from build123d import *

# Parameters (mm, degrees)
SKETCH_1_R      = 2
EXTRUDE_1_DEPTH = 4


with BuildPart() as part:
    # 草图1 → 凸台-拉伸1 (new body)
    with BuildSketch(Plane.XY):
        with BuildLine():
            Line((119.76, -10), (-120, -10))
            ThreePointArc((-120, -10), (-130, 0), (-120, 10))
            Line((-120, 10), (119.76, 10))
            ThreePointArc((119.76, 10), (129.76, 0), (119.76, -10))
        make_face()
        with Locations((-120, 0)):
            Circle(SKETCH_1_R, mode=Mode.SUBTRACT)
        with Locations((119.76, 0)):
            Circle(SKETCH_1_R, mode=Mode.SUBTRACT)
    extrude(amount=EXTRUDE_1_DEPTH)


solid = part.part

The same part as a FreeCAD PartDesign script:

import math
import FreeCAD as App
import Part
import Sketcher
from FreeCAD import Vector

doc = App.newDocument("Part")
body = doc.addObject("PartDesign::Body", "Body")

sketch1 = body.newObject("Sketcher::SketchObject", "Sketch")
sketch1.AttachmentSupport = (doc.getObject("XY_Plane"), [""])
sketch1.MapMode = "FlatFace"
sketch1.addGeometry(Part.LineSegment(Vector(-120, -10, 0), Vector(119.8, -10, 0)), False)
sketch1.addGeometry(Part.ArcOfCircle(Part.Circle(Vector(119.8, 0, 0), Vector(0, 0, 1), 10), math.radians(-90), math.radians(90)), False)
sketch1.addGeometry(Part.LineSegment(Vector(119.8, 10, 0), Vector(-120, 10, 0)), False)
sketch1.addGeometry(Part.ArcOfCircle(Part.Circle(Vector(-120, 0, 0), Vector(0, 0, 1), 10), math.radians(90), math.radians(270)), False)
sketch1.addGeometry(Part.Circle(Vector(119.8, 0, 0), Vector(0, 0, 1), 2), False)
sketch1.addGeometry(Part.Circle(Vector(-120, 0, 0), Vector(0, 0, 1), 2), False)
sketch1.addConstraint(Sketcher.Constraint("Tangent", 0, 2, 1, 1))
sketch1.addConstraint(Sketcher.Constraint("Tangent", 1, 2, 2, 1))
sketch1.addConstraint(Sketcher.Constraint("Tangent", 2, 2, 3, 1))
sketch1.addConstraint(Sketcher.Constraint("Tangent", 3, 2, 0, 1))
sketch1.addConstraint(Sketcher.Constraint("Horizontal", 0))
sketch1.addConstraint(Sketcher.Constraint("Horizontal", 2))
sketch1.addConstraint(Sketcher.Constraint("Coincident", 4, 3, 1, 3))
sketch1.addConstraint(Sketcher.Constraint("Coincident", 5, 3, 3, 3))
sketch1.addConstraint(Sketcher.Constraint("Equal", 4, 5))
sketch1.addConstraint(Sketcher.Constraint("PointOnObject", 1, 3, -1))
sketch1.addConstraint(Sketcher.Constraint("Diameter", 4, 4.0))
sketch1.addConstraint(Sketcher.Constraint("Radius", 1, 10.0))
sketch1.addConstraint(Sketcher.Constraint("DistanceX", 3, 3, -1, 1, 120.0))
sketch1.addConstraint(Sketcher.Constraint("DistanceX", 0, 1, 0, 2, 239.76))
pad1 = body.newObject("PartDesign::Pad", "Pad")
pad1.Profile = sketch1
pad1.Length = 4

doc.recompute()
